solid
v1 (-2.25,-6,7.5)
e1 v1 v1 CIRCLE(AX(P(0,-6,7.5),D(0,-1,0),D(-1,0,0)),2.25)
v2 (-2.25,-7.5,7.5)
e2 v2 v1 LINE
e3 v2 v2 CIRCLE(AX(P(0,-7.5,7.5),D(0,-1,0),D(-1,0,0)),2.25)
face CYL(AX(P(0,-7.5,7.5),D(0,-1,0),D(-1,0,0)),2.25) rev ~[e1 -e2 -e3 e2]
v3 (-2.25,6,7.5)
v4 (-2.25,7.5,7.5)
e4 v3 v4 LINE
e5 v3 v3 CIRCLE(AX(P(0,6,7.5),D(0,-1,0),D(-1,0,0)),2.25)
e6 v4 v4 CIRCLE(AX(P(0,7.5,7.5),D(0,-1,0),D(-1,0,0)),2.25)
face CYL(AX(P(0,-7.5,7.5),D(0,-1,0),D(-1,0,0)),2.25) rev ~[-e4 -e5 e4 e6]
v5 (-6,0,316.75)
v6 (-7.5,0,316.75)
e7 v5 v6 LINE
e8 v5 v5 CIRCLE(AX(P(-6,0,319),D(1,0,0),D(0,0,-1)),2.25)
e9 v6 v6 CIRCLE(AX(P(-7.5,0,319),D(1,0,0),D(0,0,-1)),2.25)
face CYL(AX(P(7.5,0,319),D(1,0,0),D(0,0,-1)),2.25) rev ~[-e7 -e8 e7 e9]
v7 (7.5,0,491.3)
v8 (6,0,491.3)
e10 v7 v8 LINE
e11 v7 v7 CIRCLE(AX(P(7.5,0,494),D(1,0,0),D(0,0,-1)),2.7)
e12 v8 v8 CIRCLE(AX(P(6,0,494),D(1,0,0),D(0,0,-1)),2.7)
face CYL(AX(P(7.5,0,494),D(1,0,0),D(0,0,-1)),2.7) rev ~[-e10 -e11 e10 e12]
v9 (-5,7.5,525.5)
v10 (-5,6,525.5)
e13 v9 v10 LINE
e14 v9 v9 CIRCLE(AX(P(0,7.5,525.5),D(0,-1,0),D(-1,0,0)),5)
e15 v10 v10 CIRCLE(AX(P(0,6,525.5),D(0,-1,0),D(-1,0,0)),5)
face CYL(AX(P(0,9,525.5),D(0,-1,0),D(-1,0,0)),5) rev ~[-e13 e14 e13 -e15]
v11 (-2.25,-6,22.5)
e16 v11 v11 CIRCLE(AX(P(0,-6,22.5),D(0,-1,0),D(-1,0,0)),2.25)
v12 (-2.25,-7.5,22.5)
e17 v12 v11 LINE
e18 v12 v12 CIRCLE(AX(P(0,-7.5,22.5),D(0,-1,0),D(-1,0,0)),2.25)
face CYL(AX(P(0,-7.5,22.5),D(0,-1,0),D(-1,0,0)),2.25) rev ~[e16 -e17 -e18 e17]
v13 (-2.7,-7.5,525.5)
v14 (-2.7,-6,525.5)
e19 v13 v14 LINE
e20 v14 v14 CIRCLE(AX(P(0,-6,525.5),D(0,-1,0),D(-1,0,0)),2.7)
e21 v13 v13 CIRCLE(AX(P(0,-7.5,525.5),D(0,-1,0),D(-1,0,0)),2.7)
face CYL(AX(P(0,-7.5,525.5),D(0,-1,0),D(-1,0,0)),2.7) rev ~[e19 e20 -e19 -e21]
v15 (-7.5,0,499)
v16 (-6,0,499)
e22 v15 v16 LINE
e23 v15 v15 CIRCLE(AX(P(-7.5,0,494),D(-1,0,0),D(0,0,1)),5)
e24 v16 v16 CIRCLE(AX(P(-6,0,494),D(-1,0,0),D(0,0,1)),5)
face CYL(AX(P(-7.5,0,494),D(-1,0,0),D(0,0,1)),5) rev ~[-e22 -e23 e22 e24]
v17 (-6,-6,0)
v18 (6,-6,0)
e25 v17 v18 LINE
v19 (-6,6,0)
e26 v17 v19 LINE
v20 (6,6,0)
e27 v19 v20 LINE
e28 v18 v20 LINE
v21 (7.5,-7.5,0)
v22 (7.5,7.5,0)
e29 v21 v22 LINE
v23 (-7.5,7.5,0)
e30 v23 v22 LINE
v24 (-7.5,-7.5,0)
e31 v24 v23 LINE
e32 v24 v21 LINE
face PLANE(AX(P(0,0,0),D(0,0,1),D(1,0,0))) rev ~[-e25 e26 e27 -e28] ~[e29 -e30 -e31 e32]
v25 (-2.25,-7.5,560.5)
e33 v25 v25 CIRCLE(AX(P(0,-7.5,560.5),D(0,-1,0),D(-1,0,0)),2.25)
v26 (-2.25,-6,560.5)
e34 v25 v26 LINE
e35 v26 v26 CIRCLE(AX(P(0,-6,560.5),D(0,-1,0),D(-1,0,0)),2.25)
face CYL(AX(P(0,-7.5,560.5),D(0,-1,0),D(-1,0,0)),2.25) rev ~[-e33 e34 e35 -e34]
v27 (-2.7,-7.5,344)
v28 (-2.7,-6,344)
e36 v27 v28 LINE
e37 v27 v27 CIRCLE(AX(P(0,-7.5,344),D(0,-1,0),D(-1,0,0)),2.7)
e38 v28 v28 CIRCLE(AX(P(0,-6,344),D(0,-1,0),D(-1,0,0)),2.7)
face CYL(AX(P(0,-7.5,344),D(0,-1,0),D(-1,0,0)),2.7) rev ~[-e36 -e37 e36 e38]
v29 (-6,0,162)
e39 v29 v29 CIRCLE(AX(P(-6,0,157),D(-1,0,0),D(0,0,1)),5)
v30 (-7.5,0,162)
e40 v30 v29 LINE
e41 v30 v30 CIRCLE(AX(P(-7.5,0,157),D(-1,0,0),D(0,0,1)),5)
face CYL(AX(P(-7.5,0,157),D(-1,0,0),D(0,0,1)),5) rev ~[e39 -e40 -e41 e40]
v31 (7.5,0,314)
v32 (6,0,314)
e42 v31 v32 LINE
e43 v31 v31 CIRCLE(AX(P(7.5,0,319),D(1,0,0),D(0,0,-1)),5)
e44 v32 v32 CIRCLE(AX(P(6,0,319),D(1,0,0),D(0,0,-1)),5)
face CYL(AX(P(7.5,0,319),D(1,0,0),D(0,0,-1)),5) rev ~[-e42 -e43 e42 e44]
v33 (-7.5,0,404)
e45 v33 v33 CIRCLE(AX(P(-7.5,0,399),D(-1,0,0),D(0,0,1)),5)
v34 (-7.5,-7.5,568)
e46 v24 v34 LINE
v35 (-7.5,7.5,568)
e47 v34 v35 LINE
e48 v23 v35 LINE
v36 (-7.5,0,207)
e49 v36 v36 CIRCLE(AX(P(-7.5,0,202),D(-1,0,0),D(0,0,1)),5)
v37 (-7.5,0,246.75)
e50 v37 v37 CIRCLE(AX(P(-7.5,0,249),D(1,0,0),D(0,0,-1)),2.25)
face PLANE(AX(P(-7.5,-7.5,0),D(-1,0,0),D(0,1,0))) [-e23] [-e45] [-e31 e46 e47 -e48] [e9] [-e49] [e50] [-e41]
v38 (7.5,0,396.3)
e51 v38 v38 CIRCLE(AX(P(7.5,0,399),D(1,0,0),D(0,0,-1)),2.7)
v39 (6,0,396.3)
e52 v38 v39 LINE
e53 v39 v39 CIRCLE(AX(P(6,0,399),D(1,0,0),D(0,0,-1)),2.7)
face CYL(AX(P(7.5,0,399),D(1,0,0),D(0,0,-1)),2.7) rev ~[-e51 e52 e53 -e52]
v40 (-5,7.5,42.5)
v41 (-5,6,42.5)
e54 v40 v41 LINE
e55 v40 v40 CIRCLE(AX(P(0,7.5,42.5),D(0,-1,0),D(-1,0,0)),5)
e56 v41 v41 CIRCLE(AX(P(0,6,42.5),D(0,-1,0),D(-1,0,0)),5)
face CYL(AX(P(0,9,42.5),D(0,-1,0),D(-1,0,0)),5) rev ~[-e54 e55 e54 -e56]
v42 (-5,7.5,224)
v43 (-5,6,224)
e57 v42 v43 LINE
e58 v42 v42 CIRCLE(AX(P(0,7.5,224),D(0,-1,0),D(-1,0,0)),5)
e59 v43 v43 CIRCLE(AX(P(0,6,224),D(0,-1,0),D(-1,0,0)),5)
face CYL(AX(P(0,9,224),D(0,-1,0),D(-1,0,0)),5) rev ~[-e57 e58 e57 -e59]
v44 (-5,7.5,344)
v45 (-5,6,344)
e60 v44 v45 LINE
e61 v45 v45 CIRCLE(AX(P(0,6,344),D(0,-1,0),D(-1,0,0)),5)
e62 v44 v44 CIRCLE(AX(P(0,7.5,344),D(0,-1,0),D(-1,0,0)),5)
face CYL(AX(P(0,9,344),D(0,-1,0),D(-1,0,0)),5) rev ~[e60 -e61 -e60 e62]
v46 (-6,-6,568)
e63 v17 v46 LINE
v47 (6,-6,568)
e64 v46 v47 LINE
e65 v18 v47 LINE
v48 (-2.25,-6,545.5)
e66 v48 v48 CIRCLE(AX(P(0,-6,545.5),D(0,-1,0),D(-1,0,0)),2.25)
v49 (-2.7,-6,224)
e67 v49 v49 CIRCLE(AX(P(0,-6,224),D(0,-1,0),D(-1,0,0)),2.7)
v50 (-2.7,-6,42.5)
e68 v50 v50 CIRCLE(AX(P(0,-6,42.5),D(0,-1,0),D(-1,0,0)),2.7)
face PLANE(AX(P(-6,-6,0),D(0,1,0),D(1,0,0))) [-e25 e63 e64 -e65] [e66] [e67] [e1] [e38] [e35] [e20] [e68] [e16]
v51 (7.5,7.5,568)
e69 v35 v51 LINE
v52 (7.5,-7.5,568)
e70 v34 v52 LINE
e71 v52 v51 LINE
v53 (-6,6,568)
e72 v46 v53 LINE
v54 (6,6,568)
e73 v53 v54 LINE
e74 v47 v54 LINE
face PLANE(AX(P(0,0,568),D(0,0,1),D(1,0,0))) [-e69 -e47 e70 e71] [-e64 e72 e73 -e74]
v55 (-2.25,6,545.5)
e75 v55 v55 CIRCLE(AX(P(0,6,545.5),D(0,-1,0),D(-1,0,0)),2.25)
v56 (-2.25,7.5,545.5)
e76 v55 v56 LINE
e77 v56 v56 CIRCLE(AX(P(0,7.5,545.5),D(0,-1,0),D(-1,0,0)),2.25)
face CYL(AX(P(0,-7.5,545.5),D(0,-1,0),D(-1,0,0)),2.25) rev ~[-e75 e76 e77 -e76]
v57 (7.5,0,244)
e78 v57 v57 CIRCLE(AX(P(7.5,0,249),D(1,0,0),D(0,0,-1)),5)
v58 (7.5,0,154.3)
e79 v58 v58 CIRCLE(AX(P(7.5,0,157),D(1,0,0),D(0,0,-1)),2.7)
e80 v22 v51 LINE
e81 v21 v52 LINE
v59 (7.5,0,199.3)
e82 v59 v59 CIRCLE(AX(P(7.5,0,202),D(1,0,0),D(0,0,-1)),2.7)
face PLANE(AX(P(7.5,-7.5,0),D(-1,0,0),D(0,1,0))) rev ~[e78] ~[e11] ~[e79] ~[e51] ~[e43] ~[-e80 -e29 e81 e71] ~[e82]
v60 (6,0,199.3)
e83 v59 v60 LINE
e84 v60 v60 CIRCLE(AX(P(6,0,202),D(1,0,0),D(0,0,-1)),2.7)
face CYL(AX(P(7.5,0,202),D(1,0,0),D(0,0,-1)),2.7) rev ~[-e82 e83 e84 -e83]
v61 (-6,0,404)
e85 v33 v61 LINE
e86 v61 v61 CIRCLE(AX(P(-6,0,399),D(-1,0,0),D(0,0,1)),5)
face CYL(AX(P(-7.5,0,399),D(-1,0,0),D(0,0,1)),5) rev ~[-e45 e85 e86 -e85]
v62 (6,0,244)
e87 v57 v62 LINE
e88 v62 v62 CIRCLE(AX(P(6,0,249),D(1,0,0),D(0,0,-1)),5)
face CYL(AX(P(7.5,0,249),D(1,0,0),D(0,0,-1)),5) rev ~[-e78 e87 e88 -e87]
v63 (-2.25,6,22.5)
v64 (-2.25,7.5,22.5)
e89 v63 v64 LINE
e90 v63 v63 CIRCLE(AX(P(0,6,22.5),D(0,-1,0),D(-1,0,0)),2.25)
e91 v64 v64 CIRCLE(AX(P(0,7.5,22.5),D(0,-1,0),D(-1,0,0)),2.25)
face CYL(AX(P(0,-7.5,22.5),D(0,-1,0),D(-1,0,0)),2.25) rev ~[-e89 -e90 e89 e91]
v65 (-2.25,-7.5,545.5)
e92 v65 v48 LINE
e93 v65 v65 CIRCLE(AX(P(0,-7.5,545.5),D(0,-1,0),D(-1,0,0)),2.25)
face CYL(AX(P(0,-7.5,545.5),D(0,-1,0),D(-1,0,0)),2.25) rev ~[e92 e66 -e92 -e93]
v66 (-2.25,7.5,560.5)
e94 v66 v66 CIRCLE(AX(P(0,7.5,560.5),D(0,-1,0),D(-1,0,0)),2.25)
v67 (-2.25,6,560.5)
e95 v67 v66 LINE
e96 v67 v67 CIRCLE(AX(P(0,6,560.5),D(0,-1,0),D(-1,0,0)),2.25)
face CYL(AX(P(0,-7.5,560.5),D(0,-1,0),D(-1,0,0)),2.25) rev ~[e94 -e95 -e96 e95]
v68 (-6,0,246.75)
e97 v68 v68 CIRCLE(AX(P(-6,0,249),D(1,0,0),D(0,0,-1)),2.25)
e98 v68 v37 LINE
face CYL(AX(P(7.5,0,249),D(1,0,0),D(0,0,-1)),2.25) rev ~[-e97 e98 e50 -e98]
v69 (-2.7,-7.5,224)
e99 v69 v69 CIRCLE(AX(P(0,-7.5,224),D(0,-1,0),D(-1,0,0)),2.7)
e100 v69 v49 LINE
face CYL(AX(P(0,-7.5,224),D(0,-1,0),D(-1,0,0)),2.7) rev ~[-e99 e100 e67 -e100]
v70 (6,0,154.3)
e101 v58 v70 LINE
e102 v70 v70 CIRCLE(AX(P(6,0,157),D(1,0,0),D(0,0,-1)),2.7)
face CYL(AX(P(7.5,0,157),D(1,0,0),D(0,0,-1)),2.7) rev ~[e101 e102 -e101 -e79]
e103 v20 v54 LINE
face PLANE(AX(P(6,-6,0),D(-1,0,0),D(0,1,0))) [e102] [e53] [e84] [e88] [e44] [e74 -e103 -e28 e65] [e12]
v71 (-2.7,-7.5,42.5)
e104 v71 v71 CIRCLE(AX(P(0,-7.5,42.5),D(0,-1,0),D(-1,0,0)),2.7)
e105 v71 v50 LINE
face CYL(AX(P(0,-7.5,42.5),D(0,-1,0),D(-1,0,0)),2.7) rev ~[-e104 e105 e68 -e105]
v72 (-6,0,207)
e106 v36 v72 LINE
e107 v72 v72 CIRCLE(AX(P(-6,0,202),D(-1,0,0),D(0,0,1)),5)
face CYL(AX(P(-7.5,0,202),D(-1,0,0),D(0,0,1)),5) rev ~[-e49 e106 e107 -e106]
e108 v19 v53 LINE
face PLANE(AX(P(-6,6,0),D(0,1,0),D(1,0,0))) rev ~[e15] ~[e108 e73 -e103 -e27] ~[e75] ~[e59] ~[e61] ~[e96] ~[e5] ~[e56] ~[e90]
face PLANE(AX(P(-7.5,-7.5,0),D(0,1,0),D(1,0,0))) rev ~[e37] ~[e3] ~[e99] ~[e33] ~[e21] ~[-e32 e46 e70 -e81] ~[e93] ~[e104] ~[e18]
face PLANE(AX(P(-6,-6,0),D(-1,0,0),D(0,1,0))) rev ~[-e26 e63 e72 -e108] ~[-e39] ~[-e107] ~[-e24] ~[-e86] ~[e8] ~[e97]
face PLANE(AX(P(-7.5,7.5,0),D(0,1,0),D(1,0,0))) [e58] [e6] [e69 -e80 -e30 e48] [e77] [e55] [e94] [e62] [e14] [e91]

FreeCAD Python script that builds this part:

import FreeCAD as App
import Part
import Sketcher
from FreeCAD import Vector


def add_polygon(sketch, points):
    """Adds a closed chain of lines whose ends are joined by coincident constraints."""
    first, n = sketch.GeometryCount, len(points)
    for a, b in zip(points, points[1:] + points[:1]):
        sketch.addGeometry(Part.LineSegment(App.Vector(*a, 0), App.Vector(*b, 0)), False)
    for i in range(n):
        sketch.addConstraint(Sketcher.Constraint("Coincident", first + i, 2, first + (i + 1) % n, 1))

doc = App.newDocument("Part")
body = doc.addObject("PartDesign::Body", "Body")

sketch1 = doc.addObject("Sketcher::SketchObject", "Sketch")
body.addObject(sketch1)
sketch1.AttachmentSupport = (doc.XY_Plane, [""])
sketch1.MapMode = "FlatFace"
add_polygon(sketch1, [(-8, 8), (-8, -8), (8, -8), (8, 8)])
add_polygon(sketch1, [(6, -6), (-6, -6), (-6, 6), (6, 6)])
sketch1.addConstraint([
    Sketcher.Constraint("Vertical", 0),
    Sketcher.Constraint("Horizontal", 1),
    Sketcher.Constraint("Vertical", 2),
    Sketcher.Constraint("Horizontal", 3),
    Sketcher.Constraint("Horizontal", 4),
    Sketcher.Constraint("Vertical", 5),
    Sketcher.Constraint("Horizontal", 6),
    Sketcher.Constraint("Vertical", 7),
    Sketcher.Constraint("Symmetric", 0, 2, 2, 2, -1, 1),
    Sketcher.Constraint("Symmetric", 4, 2, 6, 2, -1, 1),
    Sketcher.Constraint("Equal", 3, 0),
    Sketcher.Constraint("Equal", 6, 5),
    Sketcher.Constraint("DistanceX", 1, 1, 1, 2, 15.0),
    Sketcher.Constraint("DistanceX", 4, 2, 4, 1, 12.0),
])
pad1 = doc.addObject("PartDesign::Pad", "Pad")
body.addObject(pad1)
pad1.Profile = sketch1
pad1.Length = 568

sketch2 = doc.addObject("Sketcher::SketchObject", "Sketch001")
body.addObject(sketch2)
sketch2.AttachmentSupport = (doc.XZ_Plane, [""])
sketch2.MapMode = "FlatFace"
sketch2.AttachmentOffset = App.Placement(Vector(0, 0, 7.5), App.Rotation())
sketch2.addGeometry([
    Part.Circle(Vector(0, 22.5, 0), Vector(0, 0, 1), 2.2),
    Part.Circle(Vector(0, 7.5, 0), Vector(0, 0, 1), 2.2),
    Part.Circle(Vector(0, 560.5, 0), Vector(0, 0, 1), 2.2),
    Part.Circle(Vector(0, 545.5, 0), Vector(0, 0, 1), 2.2),
    Part.Circle(Vector(0, 42.5, 0), Vector(0, 0, 1), 2.7),
    Part.Circle(Vector(0, 224, 0), Vector(0, 0, 1), 2.7),
    Part.Circle(Vector(0, 344, 0), Vector(0, 0, 1), 2.7),
    Part.Circle(Vector(0, 525.5, 0), Vector(0, 0, 1), 2.7),
], False)
sketch2.addConstraint([
    Sketcher.Constraint("Equal", 0, 1),
    Sketcher.Constraint("Equal", 1, 2),
    Sketcher.Constraint("Equal", 2, 3),
    Sketcher.Constraint("Equal", 4, 5),
    Sketcher.Constraint("Equal", 5, 6),
    Sketcher.Constraint("Equal", 6, 7),
    Sketcher.Constraint("PointOnObject", 0, 3, -2),
    Sketcher.Constraint("PointOnObject", 1, 3, -2),
    Sketcher.Constraint("PointOnObject", 2, 3, -2),
    Sketcher.Constraint("PointOnObject", 3, 3, -2),
    Sketcher.Constraint("PointOnObject", 4, 3, -2),
    Sketcher.Constraint("PointOnObject", 5, 3, -2),
    Sketcher.Constraint("PointOnObject", 6, 3, -2),
    Sketcher.Constraint("PointOnObject", 7, 3, -2),
    Sketcher.Constraint("Diameter", 0, 4.5),
    Sketcher.Constraint("Diameter", 4, 5.4),
    Sketcher.Constraint("DistanceY", -1, 1, 5, 3, 224.0),
    Sketcher.Constraint("DistanceY", -1, 1, 6, 3, 344.0),
    Sketcher.Constraint("DistanceY", 1, 3, 0, 3, 15.0),
    Sketcher.Constraint("DistanceY", 0, 3, 2, 3, 538.0),
    Sketcher.Constraint("DistanceY", 3, 3, 2, 3, 15.0),
    Sketcher.Constraint("DistanceY", 0, 3, 4, 3, 20.0),
    Sketcher.Constraint("DistanceY", 7, 3, 3, 3, 20.0),
    Sketcher.Constraint("DistanceY", -1, 1, 0, 3, 22.5),
])
pocket1 = doc.addObject("PartDesign::Pocket", "Pocket")
body.addObject(pocket1)
pocket1.Profile = sketch2
pocket1.Length = 20

sketch3 = doc.addObject("Sketcher::SketchObject", "Sketch002")
body.addObject(sketch3)
sketch3.AttachmentSupport = (doc.YZ_Plane, [""])
sketch3.MapMode = "FlatFace"
sketch3.AttachmentOffset = App.Placement(Vector(0, 0, 7.5), App.Rotation())
sketch3.addGeometry([
    Part.Circle(Vector(0, 494, 0), Vector(0, 0, 1), 2.7),
    Part.Circle(Vector(0, 399, 0), Vector(0, 0, 1), 2.7),
    Part.Circle(Vector(0, 202, 0), Vector(0, 0, 1), 2.7),
    Part.Circle(Vector(0, 157, 0), Vector(0, 0, 1), 2.7),
], False)
sketch3.addConstraint([
    Sketcher.Constraint("Equal", 0, 1),
    Sketcher.Constraint("Equal", 1, 2),
    Sketcher.Constraint("Equal", 2, 3),
    Sketcher.Constraint("PointOnObject", 0, 3, -2),
    Sketcher.Constraint("PointOnObject", 1, 3, -2),
    Sketcher.Constraint("PointOnObject", 2, 3, -2),
    Sketcher.Constraint("PointOnObject", 3, 3, -2),
    Sketcher.Constraint("Diameter", 0, 5.4),
    Sketcher.Constraint("DistanceY", -1, 1, 0, 3, 494.0),
    Sketcher.Constraint("DistanceY", -1, 1, 1, 3, 399.0),
    Sketcher.Constraint("DistanceY", -1, 1, 2, 3, 202.0),
    Sketcher.Constraint("DistanceY", -1, 1, 3, 3, 157.0),
])
pocket2 = doc.addObject("PartDesign::Pocket", "Pocket001")
body.addObject(pocket2)
pocket2.Profile = sketch3
pocket2.Length = 40

sketch4 = doc.addObject("Sketcher::SketchObject", "Sketch003")
body.addObject(sketch4)
sketch4.AttachmentSupport = (doc.YZ_Plane, [""])
sketch4.MapMode = "FlatFace"
sketch4.AttachmentOffset = App.Placement(Vector(0, 0, -7.5), App.Rotation())
sketch4.addGeometry([
    Part.Circle(Vector(0, 157, 0), Vector(0, 0, 1), 5),
    Part.Circle(Vector(0, 202, 0), Vector(0, 0, 1), 5),
    Part.Circle(Vector(0, 399, 0), Vector(0, 0, 1), 5),
    Part.Circle(Vector(0, 494, 0), Vector(0, 0, 1), 5),
], False)
sketch4.addConstraint([
    Sketcher.Constraint("Equal", 0, 1),
    Sketcher.Constraint("Equal", 1, 2),
    Sketcher.Constraint("Equal", 2, 3),
    Sketcher.Constraint("PointOnObject", 0, 3, -2),
    Sketcher.Constraint("PointOnObject", 1, 3, -2),
    Sketcher.Constraint("PointOnObject", 2, 3, -2),
    Sketcher.Constraint("PointOnObject", 3, 3, -2),
    Sketcher.Constraint("Diameter", 0, 10.0),
    Sketcher.Constraint("DistanceY", -1, 1, 0, 3, 157.0),
    Sketcher.Constraint("DistanceY", -1, 1, 1, 3, 202.0),
    Sketcher.Constraint("DistanceY", -1, 1, 2, 3, 399.0),
    Sketcher.Constraint("DistanceY", -1, 1, 3, 3, 494.0),
])
pocket3 = doc.addObject("PartDesign::Pocket", "Pocket002")
body.addObject(pocket3)
pocket3.Profile = sketch4
pocket3.Length = 5
pocket3.Reversed = True

sketch5 = doc.addObject("Sketcher::SketchObject", "Sketch004")
body.addObject(sketch5)
sketch5.AttachmentSupport = (doc.YZ_Plane, [""])
sketch5.MapMode = "FlatFace"
sketch5.AttachmentOffset = App.Placement(Vector(0, 0, 7.5), App.Rotation())
sketch5.addGeometry([
    Part.Circle(Vector(0, 319, 0), Vector(0, 0, 1), 2.2),
    Part.Circle(Vector(0, 249, 0), Vector(0, 0, 1), 2.2),
], False)
sketch5.addConstraint([
    Sketcher.Constraint("Equal", 0, 1),
    Sketcher.Constraint("PointOnObject", 0, 3, -2),
    Sketcher.Constraint("PointOnObject", 1, 3, -2),
    Sketcher.Constraint("Diameter", 0, 4.5),
    Sketcher.Constraint("DistanceY", -1, 1, 0, 3, 319.0),
    Sketcher.Constraint("DistanceY", -1, 1, 1, 3, 249.0),
])
pocket4 = doc.addObject("PartDesign::Pocket", "Pocket003")
body.addObject(pocket4)
pocket4.Profile = sketch5
pocket4.Length = 40

sketch6 = doc.addObject("Sketcher::SketchObject", "Sketch005")
body.addObject(sketch6)
sketch6.AttachmentSupport = (doc.YZ_Plane, [""])
sketch6.MapMode = "FlatFace"
sketch6.AttachmentOffset = App.Placement(Vector(0, 0, 7.5), App.Rotation())
sketch6.addGeometry([
    Part.Circle(Vector(0, 319, 0), Vector(0, 0, 1), 5),
    Part.Circle(Vector(0, 249, 0), Vector(0, 0, 1), 5),
], False)
sketch6.addConstraint([
    Sketcher.Constraint("Equal", 0, 1),
    Sketcher.Constraint("PointOnObject", 0, 3, -2),
    Sketcher.Constraint("PointOnObject", 1, 3, -2),
    Sketcher.Constraint("Diameter", 0, 10.0),
    Sketcher.Constraint("DistanceY", -1, 1, 0, 3, 319.0),
    Sketcher.Constraint("DistanceY", -1, 1, 1, 3, 249.0),
])
pocket5 = doc.addObject("PartDesign::Pocket", "Pocket004")
body.addObject(pocket5)
pocket5.Profile = sketch6
pocket5.Length = 5

sketch7 = doc.addObject("Sketcher::SketchObject", "Sketch006")
body.addObject(sketch7)
sketch7.AttachmentSupport = (doc.XZ_Plane, [""])
sketch7.MapMode = "FlatFace"
sketch7.AttachmentOffset = App.Placement(Vector(0, 0, -7.5), App.Rotation())
sketch7.addGeometry([
    Part.Circle(Vector(0, 42, 0), Vector(0, 0, 1), 5),
    Part.Circle(Vector(0, 224, 0), Vector(0, 0, 1), 5),
    Part.Circle(Vector(0, 344, 0), Vector(0, 0, 1), 5),
    Part.Circle(Vector(0, 526, 0), Vector(0, 0, 1), 5),
], False)
sketch7.addConstraint([
    Sketcher.Constraint("Equal", 0, 1),
    Sketcher.Constraint("Equal", 1, 2),
    Sketcher.Constraint("Equal", 2, 3),
    Sketcher.Constraint("PointOnObject", 0, 3, -2),
    Sketcher.Constraint("PointOnObject", 1, 3, -2),
    Sketcher.Constraint("PointOnObject", 2, 3, -2),
    Sketcher.Constraint("PointOnObject", 3, 3, -2),
    Sketcher.Constraint("Diameter", 0, 10.0),
    Sketcher.Constraint("DistanceY", -1, 1, 1, 3, 224.0),
    Sketcher.Constraint("DistanceY", -1, 1, 2, 3, 344.0),
    Sketcher.Constraint("DistanceY", 0, 3, 3, 3, 483.0),
    Sketcher.Constraint("DistanceY", -1, 1, 0, 3, 42.5),
])
doc.recompute()
hole = doc.addObject("PartDesign::Hole", "Hole")
body.addObject(hole)
hole.Profile = sketch7
hole.ThreadType = "None"
hole.Diameter = 10
hole.DepthType = "Dimension"
hole.Depth = 1.5
hole.DrillPoint = "Flat"
hole.Reversed = True

doc.recompute()
